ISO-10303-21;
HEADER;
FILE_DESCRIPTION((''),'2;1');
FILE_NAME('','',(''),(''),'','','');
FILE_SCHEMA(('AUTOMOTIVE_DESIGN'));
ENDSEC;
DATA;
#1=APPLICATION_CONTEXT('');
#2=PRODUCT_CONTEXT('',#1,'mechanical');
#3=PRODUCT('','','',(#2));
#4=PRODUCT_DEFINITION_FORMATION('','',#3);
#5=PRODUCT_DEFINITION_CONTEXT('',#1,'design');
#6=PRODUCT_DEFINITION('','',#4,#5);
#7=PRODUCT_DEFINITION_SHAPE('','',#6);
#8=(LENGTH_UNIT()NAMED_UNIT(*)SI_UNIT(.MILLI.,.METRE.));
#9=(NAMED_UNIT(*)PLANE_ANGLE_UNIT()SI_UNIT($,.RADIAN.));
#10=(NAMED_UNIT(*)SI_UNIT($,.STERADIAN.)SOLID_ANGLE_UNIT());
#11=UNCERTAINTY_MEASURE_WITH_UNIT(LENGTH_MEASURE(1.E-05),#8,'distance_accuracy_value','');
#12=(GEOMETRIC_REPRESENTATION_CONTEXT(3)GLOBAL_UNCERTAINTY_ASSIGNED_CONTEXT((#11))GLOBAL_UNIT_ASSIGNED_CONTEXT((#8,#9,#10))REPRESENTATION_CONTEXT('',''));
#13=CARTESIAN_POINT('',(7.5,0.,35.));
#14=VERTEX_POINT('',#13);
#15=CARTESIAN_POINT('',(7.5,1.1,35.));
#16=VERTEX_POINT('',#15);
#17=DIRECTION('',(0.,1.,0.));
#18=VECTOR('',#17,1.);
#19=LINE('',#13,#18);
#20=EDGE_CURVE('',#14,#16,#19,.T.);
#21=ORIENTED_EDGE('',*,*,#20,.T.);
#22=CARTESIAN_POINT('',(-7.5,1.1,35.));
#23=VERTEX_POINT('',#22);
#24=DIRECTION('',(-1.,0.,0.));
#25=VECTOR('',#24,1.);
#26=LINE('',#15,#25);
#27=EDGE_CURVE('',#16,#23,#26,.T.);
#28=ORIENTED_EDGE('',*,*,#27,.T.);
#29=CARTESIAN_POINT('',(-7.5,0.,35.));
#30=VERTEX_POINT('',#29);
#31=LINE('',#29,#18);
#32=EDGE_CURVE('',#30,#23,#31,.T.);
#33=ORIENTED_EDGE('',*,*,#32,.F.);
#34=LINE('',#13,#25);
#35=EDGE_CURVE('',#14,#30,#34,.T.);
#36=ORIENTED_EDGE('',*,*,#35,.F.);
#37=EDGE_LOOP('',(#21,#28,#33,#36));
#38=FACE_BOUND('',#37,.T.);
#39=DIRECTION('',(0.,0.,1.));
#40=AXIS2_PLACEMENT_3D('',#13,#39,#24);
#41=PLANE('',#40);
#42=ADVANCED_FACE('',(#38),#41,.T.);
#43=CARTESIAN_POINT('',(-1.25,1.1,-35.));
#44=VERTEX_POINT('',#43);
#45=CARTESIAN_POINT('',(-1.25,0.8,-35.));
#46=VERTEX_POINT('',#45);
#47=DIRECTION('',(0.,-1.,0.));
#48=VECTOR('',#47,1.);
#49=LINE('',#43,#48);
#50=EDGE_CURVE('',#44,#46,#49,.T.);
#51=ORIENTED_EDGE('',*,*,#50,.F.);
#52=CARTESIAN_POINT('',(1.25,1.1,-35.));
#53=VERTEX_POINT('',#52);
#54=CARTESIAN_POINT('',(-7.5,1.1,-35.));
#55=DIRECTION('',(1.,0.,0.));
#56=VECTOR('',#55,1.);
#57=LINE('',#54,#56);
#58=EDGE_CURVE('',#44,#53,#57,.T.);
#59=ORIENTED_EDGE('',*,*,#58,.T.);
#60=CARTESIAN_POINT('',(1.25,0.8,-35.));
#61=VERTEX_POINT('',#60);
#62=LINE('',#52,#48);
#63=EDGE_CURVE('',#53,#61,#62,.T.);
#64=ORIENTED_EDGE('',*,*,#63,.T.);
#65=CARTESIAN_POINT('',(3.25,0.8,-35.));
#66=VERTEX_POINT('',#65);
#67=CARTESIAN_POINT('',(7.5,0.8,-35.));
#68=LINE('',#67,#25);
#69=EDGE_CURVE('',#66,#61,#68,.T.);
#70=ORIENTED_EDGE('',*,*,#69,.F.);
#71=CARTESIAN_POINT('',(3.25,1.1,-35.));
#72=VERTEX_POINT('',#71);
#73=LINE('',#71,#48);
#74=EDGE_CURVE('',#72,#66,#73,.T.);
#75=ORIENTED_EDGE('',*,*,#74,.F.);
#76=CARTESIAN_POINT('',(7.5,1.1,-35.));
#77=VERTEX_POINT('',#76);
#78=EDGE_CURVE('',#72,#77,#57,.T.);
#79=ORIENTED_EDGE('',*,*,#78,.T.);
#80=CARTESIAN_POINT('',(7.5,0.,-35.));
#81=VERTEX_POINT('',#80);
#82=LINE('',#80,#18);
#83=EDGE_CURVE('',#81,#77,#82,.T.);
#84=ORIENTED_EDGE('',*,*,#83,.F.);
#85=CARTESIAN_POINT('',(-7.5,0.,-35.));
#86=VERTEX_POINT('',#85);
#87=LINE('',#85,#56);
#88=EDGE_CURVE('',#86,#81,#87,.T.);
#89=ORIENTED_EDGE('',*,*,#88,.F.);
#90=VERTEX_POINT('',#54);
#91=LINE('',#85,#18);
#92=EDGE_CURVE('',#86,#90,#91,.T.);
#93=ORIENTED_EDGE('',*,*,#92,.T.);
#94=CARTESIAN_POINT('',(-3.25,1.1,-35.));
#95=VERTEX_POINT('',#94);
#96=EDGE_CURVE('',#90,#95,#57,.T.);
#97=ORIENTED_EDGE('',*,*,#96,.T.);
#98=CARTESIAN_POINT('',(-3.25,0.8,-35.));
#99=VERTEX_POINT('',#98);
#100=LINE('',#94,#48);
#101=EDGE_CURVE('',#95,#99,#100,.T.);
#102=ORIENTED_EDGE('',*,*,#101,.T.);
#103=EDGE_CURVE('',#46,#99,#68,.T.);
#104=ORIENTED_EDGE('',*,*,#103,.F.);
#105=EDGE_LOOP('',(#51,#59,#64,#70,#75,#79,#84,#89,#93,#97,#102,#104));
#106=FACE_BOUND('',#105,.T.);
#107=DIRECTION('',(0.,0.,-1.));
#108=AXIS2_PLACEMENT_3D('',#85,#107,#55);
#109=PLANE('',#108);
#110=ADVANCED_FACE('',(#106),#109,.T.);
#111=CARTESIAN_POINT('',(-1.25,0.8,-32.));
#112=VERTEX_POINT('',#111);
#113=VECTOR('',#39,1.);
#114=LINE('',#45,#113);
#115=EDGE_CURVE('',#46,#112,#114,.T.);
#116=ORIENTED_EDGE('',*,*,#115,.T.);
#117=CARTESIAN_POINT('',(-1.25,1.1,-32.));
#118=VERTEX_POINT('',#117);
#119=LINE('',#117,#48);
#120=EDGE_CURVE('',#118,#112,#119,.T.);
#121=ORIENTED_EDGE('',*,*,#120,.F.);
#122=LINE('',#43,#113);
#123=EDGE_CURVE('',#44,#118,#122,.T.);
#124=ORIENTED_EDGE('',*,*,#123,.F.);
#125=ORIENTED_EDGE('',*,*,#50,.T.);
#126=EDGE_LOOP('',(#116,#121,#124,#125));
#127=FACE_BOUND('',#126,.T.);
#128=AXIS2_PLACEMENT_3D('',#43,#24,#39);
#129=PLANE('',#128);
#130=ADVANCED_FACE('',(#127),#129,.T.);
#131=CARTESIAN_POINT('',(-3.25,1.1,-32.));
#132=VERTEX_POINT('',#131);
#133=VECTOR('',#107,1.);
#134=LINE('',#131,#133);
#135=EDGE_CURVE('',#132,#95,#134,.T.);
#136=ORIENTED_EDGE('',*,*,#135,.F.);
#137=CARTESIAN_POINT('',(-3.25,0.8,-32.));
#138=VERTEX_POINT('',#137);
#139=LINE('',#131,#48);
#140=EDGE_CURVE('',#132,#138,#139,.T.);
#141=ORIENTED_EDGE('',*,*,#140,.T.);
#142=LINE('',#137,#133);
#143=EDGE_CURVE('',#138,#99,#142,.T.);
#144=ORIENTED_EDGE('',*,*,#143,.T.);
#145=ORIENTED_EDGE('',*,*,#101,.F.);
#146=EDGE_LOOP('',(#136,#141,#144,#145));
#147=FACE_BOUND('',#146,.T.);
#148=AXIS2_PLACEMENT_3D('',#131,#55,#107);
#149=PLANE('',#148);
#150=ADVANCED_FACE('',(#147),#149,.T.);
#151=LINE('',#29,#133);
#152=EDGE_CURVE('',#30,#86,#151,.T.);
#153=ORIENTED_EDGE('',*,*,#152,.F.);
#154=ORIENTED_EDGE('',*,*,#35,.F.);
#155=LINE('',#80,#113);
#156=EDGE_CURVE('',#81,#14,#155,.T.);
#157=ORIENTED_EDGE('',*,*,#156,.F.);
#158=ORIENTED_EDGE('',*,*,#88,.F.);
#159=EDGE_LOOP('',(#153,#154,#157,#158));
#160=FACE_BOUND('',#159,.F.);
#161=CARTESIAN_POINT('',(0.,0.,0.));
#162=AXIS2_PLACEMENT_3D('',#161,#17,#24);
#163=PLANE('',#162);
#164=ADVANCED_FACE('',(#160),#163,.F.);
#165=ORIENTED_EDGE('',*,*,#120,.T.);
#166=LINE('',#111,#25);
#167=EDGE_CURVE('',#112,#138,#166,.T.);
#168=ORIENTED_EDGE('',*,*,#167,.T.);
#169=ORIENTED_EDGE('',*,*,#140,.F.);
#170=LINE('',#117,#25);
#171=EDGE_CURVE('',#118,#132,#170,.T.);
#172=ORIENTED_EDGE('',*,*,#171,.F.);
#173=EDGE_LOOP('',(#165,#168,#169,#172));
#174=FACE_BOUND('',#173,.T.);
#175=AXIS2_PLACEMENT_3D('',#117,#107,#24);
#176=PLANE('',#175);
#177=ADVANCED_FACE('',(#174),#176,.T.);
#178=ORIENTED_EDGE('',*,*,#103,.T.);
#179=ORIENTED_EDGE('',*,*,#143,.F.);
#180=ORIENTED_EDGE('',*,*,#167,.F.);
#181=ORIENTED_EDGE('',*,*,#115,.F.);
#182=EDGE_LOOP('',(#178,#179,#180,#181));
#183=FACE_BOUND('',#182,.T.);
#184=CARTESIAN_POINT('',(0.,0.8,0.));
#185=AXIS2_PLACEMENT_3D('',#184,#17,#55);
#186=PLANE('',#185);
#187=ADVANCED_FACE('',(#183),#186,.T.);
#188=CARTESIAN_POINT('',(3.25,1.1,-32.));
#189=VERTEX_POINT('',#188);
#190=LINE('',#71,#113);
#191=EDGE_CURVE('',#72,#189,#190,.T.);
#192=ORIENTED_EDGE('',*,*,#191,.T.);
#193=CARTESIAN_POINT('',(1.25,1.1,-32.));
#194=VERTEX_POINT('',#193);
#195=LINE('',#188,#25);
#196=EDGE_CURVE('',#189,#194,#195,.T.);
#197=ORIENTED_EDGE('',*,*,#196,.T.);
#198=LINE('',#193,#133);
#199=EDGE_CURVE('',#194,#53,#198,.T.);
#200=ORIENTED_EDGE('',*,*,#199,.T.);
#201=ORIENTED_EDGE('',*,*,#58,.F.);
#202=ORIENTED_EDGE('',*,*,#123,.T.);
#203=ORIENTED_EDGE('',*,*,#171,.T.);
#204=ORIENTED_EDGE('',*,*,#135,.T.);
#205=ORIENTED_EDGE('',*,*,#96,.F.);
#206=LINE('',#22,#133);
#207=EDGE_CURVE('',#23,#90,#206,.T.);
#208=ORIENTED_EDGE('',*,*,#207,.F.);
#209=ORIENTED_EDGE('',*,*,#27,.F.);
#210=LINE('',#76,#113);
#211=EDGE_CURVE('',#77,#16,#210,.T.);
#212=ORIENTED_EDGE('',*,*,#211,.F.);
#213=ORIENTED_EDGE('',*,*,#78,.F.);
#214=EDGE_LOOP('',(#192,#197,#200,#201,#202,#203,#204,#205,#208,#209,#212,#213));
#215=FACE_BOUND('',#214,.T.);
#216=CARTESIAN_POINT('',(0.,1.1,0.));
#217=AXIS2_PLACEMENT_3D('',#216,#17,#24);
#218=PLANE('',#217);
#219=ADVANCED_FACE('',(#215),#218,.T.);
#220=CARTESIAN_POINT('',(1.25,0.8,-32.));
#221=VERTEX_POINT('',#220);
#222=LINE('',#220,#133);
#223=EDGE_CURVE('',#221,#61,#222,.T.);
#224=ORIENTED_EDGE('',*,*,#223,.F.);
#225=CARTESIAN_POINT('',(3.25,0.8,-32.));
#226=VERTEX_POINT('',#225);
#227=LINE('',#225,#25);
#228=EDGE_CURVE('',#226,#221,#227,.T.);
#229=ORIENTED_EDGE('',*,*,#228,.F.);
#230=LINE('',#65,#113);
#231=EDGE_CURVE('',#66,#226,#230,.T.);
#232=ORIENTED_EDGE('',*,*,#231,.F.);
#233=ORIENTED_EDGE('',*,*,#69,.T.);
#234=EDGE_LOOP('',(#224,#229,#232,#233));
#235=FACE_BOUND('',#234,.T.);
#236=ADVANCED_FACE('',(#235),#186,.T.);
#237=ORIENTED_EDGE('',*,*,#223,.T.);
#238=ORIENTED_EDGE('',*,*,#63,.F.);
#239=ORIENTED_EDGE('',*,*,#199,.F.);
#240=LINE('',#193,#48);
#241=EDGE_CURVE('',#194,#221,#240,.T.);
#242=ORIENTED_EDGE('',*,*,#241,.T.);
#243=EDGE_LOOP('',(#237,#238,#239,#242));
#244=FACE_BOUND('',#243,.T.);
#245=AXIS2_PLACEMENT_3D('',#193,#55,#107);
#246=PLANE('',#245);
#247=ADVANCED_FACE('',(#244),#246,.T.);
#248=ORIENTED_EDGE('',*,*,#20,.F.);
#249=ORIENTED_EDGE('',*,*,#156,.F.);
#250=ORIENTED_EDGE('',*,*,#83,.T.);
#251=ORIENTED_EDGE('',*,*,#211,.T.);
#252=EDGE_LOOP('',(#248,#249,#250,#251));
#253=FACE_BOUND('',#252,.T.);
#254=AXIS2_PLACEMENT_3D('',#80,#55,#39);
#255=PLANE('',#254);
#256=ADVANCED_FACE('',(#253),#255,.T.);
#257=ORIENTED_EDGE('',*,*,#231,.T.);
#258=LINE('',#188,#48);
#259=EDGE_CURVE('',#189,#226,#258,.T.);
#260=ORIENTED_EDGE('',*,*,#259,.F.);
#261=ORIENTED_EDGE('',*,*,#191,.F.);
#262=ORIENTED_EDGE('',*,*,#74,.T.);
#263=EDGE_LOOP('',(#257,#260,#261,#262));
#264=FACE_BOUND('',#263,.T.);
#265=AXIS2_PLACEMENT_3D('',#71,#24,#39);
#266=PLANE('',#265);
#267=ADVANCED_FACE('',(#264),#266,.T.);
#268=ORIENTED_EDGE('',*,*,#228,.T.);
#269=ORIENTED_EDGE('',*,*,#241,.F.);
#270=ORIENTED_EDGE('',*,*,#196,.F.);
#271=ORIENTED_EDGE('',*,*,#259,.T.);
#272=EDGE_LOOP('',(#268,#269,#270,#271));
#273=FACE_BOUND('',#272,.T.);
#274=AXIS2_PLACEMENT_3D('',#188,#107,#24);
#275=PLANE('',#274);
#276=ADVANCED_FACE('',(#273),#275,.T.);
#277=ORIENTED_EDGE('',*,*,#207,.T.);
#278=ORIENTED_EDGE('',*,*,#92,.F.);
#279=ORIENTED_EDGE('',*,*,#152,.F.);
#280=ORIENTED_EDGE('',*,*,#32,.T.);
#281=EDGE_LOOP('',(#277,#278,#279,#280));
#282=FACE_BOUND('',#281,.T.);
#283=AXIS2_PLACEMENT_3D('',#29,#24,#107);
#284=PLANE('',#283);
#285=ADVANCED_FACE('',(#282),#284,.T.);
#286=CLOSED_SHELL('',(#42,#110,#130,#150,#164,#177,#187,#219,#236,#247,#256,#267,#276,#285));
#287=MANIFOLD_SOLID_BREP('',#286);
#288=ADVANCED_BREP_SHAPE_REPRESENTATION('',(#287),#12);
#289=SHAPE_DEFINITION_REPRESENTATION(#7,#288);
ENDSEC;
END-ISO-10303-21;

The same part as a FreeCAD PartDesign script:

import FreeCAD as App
import Part
import Sketcher
from FreeCAD import Vector

doc = App.newDocument("Part")
body = doc.addObject("PartDesign::Body", "Body")

sketch1 = body.newObject("Sketcher::SketchObject", "Sketch")
sketch1.AttachmentSupport = (doc.getObject("XZ_Plane"), [""])
sketch1.MapMode = "FlatFace"
sketch1.addGeometry(Part.LineSegment(Vector(-8, 35, 0), Vector(8, 35, 0)), False)
sketch1.addGeometry(Part.LineSegment(Vector(8, 35, 0), Vector(8, -35, 0)), False)
sketch1.addGeometry(Part.LineSegment(Vector(8, -35, 0), Vector(-8, -35, 0)), False)
sketch1.addGeometry(Part.LineSegment(Vector(-8, -35, 0), Vector(-8, 35, 0)), False)
sketch1.addConstraint(Sketcher.Constraint("Coincident", 0, 2, 1, 1))
sketch1.addConstraint(Sketcher.Constraint("Coincident", 1, 2, 2, 1))
sketch1.addConstraint(Sketcher.Constraint("Coincident", 2, 2, 3, 1))
sketch1.addConstraint(Sketcher.Constraint("Coincident", 3, 2, 0, 1))
sketch1.addConstraint(Sketcher.Constraint("Horizontal", 0))
sketch1.addConstraint(Sketcher.Constraint("Vertical", 1))
sketch1.addConstraint(Sketcher.Constraint("Horizontal", 2))
sketch1.addConstraint(Sketcher.Constraint("Vertical", 3))
sketch1.addConstraint(Sketcher.Constraint("Symmetric", 0, 2, 2, 2, -1, 1))
sketch1.addConstraint(Sketcher.Constraint("DistanceX", 0, 1, 0, 2, 15.0))
sketch1.addConstraint(Sketcher.Constraint("DistanceY", 1, 2, 1, 1, 70.0))
pad1 = body.newObject("PartDesign::Pad", "Pad")
pad1.Profile = sketch1
pad1.Length = 1.1
pad1.Reversed = True

sketch2 = body.newObject("Sketcher::SketchObject", "Sketch001")
sketch2.AttachmentSupport = (doc.getObject("XZ_Plane"), [""])
sketch2.MapMode = "FlatFace"
sketch2.AttachmentOffset = App.Placement(Vector(0, 0, -1.1), App.Rotation())
sketch2.addGeometry(Part.LineSegment(Vector(3.2, -32, 0), Vector(3.2, -35, 0)), False)
sketch2.addGeometry(Part.LineSegment(Vector(3.2, -35, 0), Vector(1.2, -35, 0)), False)
sketch2.addGeometry(Part.LineSegment(Vector(1.2, -35, 0), Vector(1.2, -32, 0)), False)
sketch2.addGeometry(Part.LineSegment(Vector(1.2, -32, 0), Vector(3.2, -32, 0)), False)
sketch2.addGeometry(Part.LineSegment(Vector(-1.2, -32, 0), Vector(-1.2, -35, 0)), False)
sketch2.addGeometry(Part.LineSegment(Vector(-1.2, -35, 0), Vector(-3.2, -35, 0)), False)
sketch2.addGeometry(Part.LineSegment(Vector(-3.2, -35, 0), Vector(-3.2, -32, 0)), False)
sketch2.addGeometry(Part.LineSegment(Vector(-3.2, -32, 0), Vector(-1.2, -32, 0)), False)
sketch2.addConstraint(Sketcher.Constraint("Coincident", 0, 2, 1, 1))
sketch2.addConstraint(Sketcher.Constraint("Coincident", 1, 2, 2, 1))
sketch2.addConstraint(Sketcher.Constraint("Coincident", 2, 2, 3, 1))
sketch2.addConstraint(Sketcher.Constraint("Coincident", 3, 2, 0, 1))
sketch2.addConstraint(Sketcher.Constraint("Coincident", 4, 2, 5, 1))
sketch2.addConstraint(Sketcher.Constraint("Coincident", 5, 2, 6, 1))
sketch2.addConstraint(Sketcher.Constraint("Coincident", 6, 2, 7, 1))
sketch2.addConstraint(Sketcher.Constraint("Coincident", 7, 2, 4, 1))
sketch2.addConstraint(Sketcher.Constraint("Vertical", 0))
sketch2.addConstraint(Sketcher.Constraint("Horizontal", 1))
sketch2.addConstraint(Sketcher.Constraint("Vertical", 2))
sketch2.addConstraint(Sketcher.Constraint("Horizontal", 3))
sketch2.addConstraint(Sketcher.Constraint("Vertical", 4))
sketch2.addConstraint(Sketcher.Constraint("Horizontal", 5))
sketch2.addConstraint(Sketcher.Constraint("Vertical", 6))
sketch2.addConstraint(Sketcher.Constraint("Horizontal", 7))
sketch2.addConstraint(Sketcher.Constraint("Symmetric", 1, 2, 4, 2, -2))
sketch2.addConstraint(Sketcher.Constraint("Symmetric", 3, 2, 6, 2, -2))
sketch2.addConstraint(Sketcher.Constraint("DistanceX", 1, 2, 1, 1, 2.0))
sketch2.addConstraint(Sketcher.Constraint("DistanceY", 0, 2, 0, 1, 3.0))
sketch2.addConstraint(Sketcher.Constraint("DistanceX", 4, 2, 1, 2, 2.5))
sketch2.addConstraint(Sketcher.Constraint("DistanceY", 0, 2, -1, 1, 35.0))
pocket1 = body.newObject("PartDesign::Pocket", "Pocket")
pocket1.Profile = sketch2
pocket1.Length = 0.3
pocket1.Reversed = True

doc.recompute()
